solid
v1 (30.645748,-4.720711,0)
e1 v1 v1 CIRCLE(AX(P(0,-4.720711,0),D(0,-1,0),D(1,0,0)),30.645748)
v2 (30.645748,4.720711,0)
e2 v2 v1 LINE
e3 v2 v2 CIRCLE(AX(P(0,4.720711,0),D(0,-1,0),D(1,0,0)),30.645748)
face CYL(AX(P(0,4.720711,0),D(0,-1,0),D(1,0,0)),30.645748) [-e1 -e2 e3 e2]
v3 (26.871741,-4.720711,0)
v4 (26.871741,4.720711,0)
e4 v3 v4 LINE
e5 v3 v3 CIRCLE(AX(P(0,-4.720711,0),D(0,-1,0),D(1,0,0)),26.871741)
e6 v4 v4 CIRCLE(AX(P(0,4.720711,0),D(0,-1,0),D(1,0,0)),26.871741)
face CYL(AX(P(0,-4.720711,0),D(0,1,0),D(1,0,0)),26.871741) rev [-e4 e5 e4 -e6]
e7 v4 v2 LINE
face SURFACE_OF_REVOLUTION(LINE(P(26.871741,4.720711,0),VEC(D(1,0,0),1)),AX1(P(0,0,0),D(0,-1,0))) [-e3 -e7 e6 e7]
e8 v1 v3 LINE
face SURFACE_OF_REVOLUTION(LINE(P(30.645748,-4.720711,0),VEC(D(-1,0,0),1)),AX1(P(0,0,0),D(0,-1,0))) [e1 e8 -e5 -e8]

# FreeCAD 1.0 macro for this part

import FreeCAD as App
import Part
import Sketcher
from FreeCAD import Vector


def add_polygon(sketch, points):
    """Adds a closed chain of lines whose ends are joined by coincident constraints."""
    first, n = sketch.GeometryCount, len(points)
    for a, b in zip(points, points[1:] + points[:1]):
        sketch.addGeometry(Part.LineSegment(App.Vector(*a, 0), App.Vector(*b, 0)), False)
    for i in range(n):
        sketch.addConstraint(Sketcher.Constraint("Coincident", first + i, 2, first + (i + 1) % n, 1))

doc = App.newDocument("Part")
body = doc.addObject("PartDesign::Body", "Body")

sketch1 = body.newObject("Sketcher::SketchObject", "Sketch")
sketch1.AttachmentSupport = (doc.getObject("XY_Plane"), [""])
sketch1.MapMode = "FlatFace"
add_polygon(sketch1, [(-26.9, 4.7), (-30.6, 4.7), (-30.6, -4.7), (-26.9, -4.7)])
sketch1.addConstraint([
    Sketcher.Constraint("Horizontal", 0),
    Sketcher.Constraint("Vertical", 1),
    Sketcher.Constraint("Horizontal", 2),
    Sketcher.Constraint("Vertical", 3),
    Sketcher.Constraint("DistanceY", 1, 2, 1, 1, 9.441422),
    Sketcher.Constraint("DistanceX", 0, 2, 0, 1, 3.774007),
    Sketcher.Constraint("DistanceX", 0, 2, -1, 1, 30.645748),
    Sketcher.Constraint("DistanceY", -1, 1, 0, 2, 4.720711),
])

sketch2 = body.newObject("Sketcher::SketchObject", "Sketch001")
sketch2.AttachmentSupport = (doc.getObject("XZ_Plane"), [""])
sketch2.MapMode = "FlatFace"
sketch2.addGeometry(Part.Circle(Vector(0, 0, 0), Vector(0, 0, 1), 29), False)
sketch2.addConstraint([
    Sketcher.Constraint("Coincident", 0, 3, -1, 1),
    Sketcher.Constraint("Diameter", 0, 57.517488),
])
doc.recompute()

additivepipe = body.newObject("PartDesign::AdditivePipe", "AdditivePipe")
additivepipe.Profile = sketch1
additivepipe.Spine = (sketch2, ["Edge1"])

doc.recompute()
